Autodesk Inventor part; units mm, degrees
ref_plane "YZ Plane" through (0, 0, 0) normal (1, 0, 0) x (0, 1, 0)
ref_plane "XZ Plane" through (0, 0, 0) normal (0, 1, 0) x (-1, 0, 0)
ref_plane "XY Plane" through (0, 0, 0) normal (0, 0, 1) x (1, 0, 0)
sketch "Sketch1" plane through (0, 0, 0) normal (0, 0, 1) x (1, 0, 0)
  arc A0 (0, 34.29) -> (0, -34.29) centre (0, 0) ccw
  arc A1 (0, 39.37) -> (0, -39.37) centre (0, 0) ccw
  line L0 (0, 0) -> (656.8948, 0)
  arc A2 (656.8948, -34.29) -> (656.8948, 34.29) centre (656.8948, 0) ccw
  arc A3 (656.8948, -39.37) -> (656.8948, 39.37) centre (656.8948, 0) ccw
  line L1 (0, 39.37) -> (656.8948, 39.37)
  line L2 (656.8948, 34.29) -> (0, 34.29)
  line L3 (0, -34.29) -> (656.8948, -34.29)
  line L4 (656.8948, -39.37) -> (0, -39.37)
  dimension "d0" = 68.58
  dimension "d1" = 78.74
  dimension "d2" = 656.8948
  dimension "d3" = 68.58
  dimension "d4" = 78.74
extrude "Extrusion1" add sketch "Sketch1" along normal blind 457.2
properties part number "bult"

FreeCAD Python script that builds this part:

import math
import FreeCAD as App
import Part
import Sketcher
from FreeCAD import Vector
Q = App.Units.Quantity

doc = App.newDocument("Part")
params = doc.addObject("Spreadsheet::Sheet", "Params")
for row, (alias, value) in enumerate([
    ("sketch1_radius", "1.55 in"),
    ("sketch1_radius2", "1.35 in"),
    ("sketch1_width", "25.862 in"),
    ("pad1_length", "18 in"),
], start=1):
    params.set(f"A{row}", alias)
    params.set(f"B{row}", "=" + value)
    params.setAlias(f"B{row}", alias)

body = doc.addObject("PartDesign::Body", "Body")

# Sketch on XY plane
sketch1 = body.newObject("Sketcher::SketchObject", "Sketch")
sketch1.AttachmentSupport = (doc.getObject("XY_Plane"), [""])
sketch1.MapMode = "FlatFace"
sketch1.addGeometry([
    Part.LineSegment(Vector(657, 39, 0), Vector(0, 39, 0)),  # 0
    Part.ArcOfCircle(Part.Circle(Vector(0, 0, 0), Vector(0, 0, 1), 39), math.radians(90), math.radians(270)),  # 1
    Part.LineSegment(Vector(0, -39, 0), Vector(657, -39, 0)),  # 2
    Part.ArcOfCircle(Part.Circle(Vector(657, 0, 0), Vector(0, 0, 1), 39), math.radians(-90), math.radians(90)),  # 3
    Part.ArcOfCircle(Part.Circle(Vector(0, 0, 0), Vector(0, 0, 1), 34), math.radians(90), math.radians(270)),  # 4
    Part.LineSegment(Vector(0, 34, 0), Vector(657, 34, 0)),  # 5
    Part.ArcOfCircle(Part.Circle(Vector(657, 0, 0), Vector(0, 0, 1), 34), math.radians(-90), math.radians(90)),  # 6
    Part.LineSegment(Vector(657, -34, 0), Vector(0, -34, 0)),  # 7
], False)
sketch1.addConstraint([
    Sketcher.Constraint("Tangent", 0, 2, 1, 1),
    Sketcher.Constraint("Tangent", 1, 2, 2, 1),
    Sketcher.Constraint("Tangent", 2, 2, 3, 1),
    Sketcher.Constraint("Tangent", 3, 2, 0, 1),
    Sketcher.Constraint("Tangent", 4, 1, 5, 1),
    Sketcher.Constraint("Tangent", 5, 2, 6, 2),
    Sketcher.Constraint("Tangent", 6, 1, 7, 1),
    Sketcher.Constraint("Tangent", 7, 2, 4, 2),
    Sketcher.Constraint("Horizontal", 0),
    Sketcher.Constraint("Horizontal", 2),
    Sketcher.Constraint("Horizontal", 5),
    Sketcher.Constraint("Horizontal", 7),
    Sketcher.Constraint("Coincident", 1, 3, -1, 1),
    Sketcher.Constraint("Coincident", 4, 3, -1, 1),
    Sketcher.Constraint("Vertical", 6, 3, 2, 2),
    Sketcher.Constraint("Radius", 1, Q("1.55 in")),
    Sketcher.Constraint("Radius", 4, Q("1.35 in")),
    Sketcher.Constraint("DistanceX", 0, 2, 0, 1, Q("25.862 in")),
])
sketch1.setExpression("Constraints[15]", "Params.sketch1_radius")
sketch1.setExpression("Constraints[16]", "Params.sketch1_radius2")
sketch1.setExpression("Constraints[17]", "Params.sketch1_width")
pad1 = body.newObject("PartDesign::Pad", "Pad")
pad1.Profile = sketch1
pad1.setExpression("Length", "Params.pad1_length")

doc.recompute()
